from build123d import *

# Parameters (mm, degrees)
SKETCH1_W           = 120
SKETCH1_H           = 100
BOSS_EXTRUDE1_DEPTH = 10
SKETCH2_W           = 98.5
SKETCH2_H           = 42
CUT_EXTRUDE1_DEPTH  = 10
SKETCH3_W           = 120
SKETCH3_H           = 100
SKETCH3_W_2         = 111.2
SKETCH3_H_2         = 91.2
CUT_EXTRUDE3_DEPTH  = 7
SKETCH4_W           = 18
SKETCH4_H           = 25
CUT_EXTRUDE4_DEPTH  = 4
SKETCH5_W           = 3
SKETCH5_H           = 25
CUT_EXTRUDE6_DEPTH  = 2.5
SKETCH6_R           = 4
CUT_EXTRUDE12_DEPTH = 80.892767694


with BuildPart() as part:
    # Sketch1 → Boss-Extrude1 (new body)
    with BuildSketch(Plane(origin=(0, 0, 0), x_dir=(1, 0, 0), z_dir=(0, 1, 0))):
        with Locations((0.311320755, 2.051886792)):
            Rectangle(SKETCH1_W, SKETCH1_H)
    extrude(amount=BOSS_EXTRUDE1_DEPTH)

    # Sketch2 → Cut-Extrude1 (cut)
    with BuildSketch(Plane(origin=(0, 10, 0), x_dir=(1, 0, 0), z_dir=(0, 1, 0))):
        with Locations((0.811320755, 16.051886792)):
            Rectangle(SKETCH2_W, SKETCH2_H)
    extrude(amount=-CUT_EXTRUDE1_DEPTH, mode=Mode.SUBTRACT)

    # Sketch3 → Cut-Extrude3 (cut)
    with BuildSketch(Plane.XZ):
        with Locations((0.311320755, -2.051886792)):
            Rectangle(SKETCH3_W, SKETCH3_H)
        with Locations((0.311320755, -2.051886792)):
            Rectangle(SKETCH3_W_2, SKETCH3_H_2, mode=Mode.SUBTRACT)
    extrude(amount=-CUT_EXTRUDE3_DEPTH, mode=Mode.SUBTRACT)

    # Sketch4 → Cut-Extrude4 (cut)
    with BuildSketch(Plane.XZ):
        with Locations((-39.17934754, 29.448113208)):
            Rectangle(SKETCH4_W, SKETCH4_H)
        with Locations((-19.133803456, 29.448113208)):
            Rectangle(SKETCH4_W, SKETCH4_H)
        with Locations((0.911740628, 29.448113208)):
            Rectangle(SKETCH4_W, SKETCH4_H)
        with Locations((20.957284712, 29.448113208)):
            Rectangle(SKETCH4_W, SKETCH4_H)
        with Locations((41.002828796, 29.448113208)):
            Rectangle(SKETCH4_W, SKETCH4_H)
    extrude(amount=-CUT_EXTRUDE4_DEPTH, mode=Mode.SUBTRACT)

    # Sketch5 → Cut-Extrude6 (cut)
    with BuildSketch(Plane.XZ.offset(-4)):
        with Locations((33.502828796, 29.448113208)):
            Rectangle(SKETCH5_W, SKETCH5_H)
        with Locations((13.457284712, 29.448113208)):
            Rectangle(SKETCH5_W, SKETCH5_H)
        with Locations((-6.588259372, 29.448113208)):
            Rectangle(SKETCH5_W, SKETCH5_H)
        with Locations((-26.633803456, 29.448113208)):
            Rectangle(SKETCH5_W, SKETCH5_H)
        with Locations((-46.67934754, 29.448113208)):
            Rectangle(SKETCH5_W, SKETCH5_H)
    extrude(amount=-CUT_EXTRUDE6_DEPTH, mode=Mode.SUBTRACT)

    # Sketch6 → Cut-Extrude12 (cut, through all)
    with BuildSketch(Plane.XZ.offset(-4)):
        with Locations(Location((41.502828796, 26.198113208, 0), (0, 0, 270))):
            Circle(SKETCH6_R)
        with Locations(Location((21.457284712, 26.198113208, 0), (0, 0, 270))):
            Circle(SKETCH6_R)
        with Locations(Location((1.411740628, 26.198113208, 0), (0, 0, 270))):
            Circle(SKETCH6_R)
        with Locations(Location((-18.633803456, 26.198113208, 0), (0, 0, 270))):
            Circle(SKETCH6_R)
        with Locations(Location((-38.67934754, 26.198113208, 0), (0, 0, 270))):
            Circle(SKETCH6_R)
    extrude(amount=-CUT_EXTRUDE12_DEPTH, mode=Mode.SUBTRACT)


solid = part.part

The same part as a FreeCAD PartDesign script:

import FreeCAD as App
import Part
import Sketcher
Q = App.Units.Quantity

doc = App.newDocument("Part")
params = doc.addObject("Spreadsheet::Sheet", "Params")
for row, (alias, value) in enumerate([
    ("sketch1_width", "120 mm"),
    ("sketch1_height", "100 mm"),
    ("pad1_length", "10 mm"),
    ("sketch2_height", "42 mm"),
    ("sketch2_width", "98.5 mm"),
    ("pocket1_length", "10 mm"),
    ("sketch3_width", "120 mm"),
    ("sketch3_height", "100 mm"),
    ("sketch3_width2", "111.2 mm"),
    ("sketch3_height2", "91.2 mm"),
    ("pocket2_length", "7 mm"),
    ("sketch4_width", "18 mm"),
    ("sketch4_height", "25 mm"),
    ("pocket3_length", "4 mm"),
    ("sketch5_width", "3 mm"),
    ("sketch5_height", "25 mm"),
    ("pocket4_length", "2.5 mm"),
    ("sketch6_diameter", "8 mm"),
], start=1):
    params.set(f"A{row}", alias)
    params.set(f"B{row}", "=" + value)
    params.setAlias(f"B{row}", alias)

body = doc.addObject("PartDesign::Body", "Body")

# Sketch on XZ plane
sketch1 = body.newObject("Sketcher::SketchObject", "Sketch")
sketch1.AttachmentSupport = (doc.getObject("XZ_Plane"), [""])
sketch1.MapMode = "FlatFace"
sketch1.addGeometry(Part.LineSegment(App.Vector(-59.688679, -52.051887, 0), App.Vector(-59.688679, 47.948113, 0)), False)
sketch1.addGeometry(Part.LineSegment(App.Vector(-59.688679, 47.948113, 0), App.Vector(60.311321, 47.948113, 0)), False)
sketch1.addGeometry(Part.LineSegment(App.Vector(60.311321, 47.948113, 0), App.Vector(60.311321, -52.051887, 0)), False)
sketch1.addGeometry(Part.LineSegment(App.Vector(60.311321, -52.051887, 0), App.Vector(-59.688679, -52.051887, 0)), False)
sketch1.addConstraint(Sketcher.Constraint("Coincident", 0, 2, 1, 1))
sketch1.addConstraint(Sketcher.Constraint("Coincident", 1, 2, 2, 1))
sketch1.addConstraint(Sketcher.Constraint("Coincident", 2, 2, 3, 1))
sketch1.addConstraint(Sketcher.Constraint("Coincident", 3, 2, 0, 1))
sketch1.addConstraint(Sketcher.Constraint("Vertical", 0))
sketch1.addConstraint(Sketcher.Constraint("Horizontal", 1))
sketch1.addConstraint(Sketcher.Constraint("Vertical", 2))
sketch1.addConstraint(Sketcher.Constraint("Horizontal", 3))
sketch1.addConstraint(Sketcher.Constraint("DistanceX", 1, 1, 1, 2, Q("120 mm")))
sketch1.addConstraint(Sketcher.Constraint("DistanceY", 0, 1, 0, 2, Q("100 mm")))
sketch1.addConstraint(Sketcher.Constraint("DistanceX", 0, 2, -1, 1, Q("59.688679 mm")))
sketch1.addConstraint(Sketcher.Constraint("DistanceY", -1, 1, 0, 2, Q("47.948113 mm")))
sketch1.setExpression("Constraints[8]", "Params.sketch1_width")
sketch1.setExpression("Constraints[9]", "Params.sketch1_height")
pad1 = body.newObject("PartDesign::Pad", "Pad")
pad1.Profile = sketch1
pad1.setExpression("Length", "Params.pad1_length")
pad1.Reversed = True

# Sketch on XZ plane
sketch2 = body.newObject("Sketcher::SketchObject", "Sketch001")
sketch2.AttachmentSupport = (doc.getObject("XZ_Plane"), [""])
sketch2.MapMode = "FlatFace"
sketch2.AttachmentOffset = App.Placement(App.Vector(0, 0, -10), App.Rotation())
sketch2.addGeometry(Part.LineSegment(App.Vector(-48.438679, -37.051887, 0), App.Vector(-48.438679, 4.948113, 0)), False)
sketch2.addGeometry(Part.LineSegment(App.Vector(-48.438679, 4.948113, 0), App.Vector(50.061321, 4.948113, 0)), False)
sketch2.addGeometry(Part.LineSegment(App.Vector(50.061321, 4.948113, 0), App.Vector(50.061321, -37.051887, 0)), False)
sketch2.addGeometry(Part.LineSegment(App.Vector(50.061321, -37.051887, 0), App.Vector(-48.438679, -37.051887, 0)), False)
sketch2.addConstraint(Sketcher.Constraint("Coincident", 0, 2, 1, 1))
sketch2.addConstraint(Sketcher.Constraint("Coincident", 1, 2, 2, 1))
sketch2.addConstraint(Sketcher.Constraint("Coincident", 2, 2, 3, 1))
sketch2.addConstraint(Sketcher.Constraint("Coincident", 3, 2, 0, 1))
sketch2.addConstraint(Sketcher.Constraint("Vertical", 0))
sketch2.addConstraint(Sketcher.Constraint("Horizontal", 1))
sketch2.addConstraint(Sketcher.Constraint("Vertical", 2))
sketch2.addConstraint(Sketcher.Constraint("Horizontal", 3))
sketch2.addConstraint(Sketcher.Constraint("DistanceY", 0, 1, 0, 2, Q("42 mm")))
sketch2.addConstraint(Sketcher.Constraint("DistanceX", 1, 1, 1, 2, Q("98.5 mm")))
sketch2.addConstraint(Sketcher.Constraint("DistanceX", 0, 2, -1, 1, Q("48.438679 mm")))
sketch2.addConstraint(Sketcher.Constraint("DistanceY", -1, 1, 0, 2, Q("4.948113 mm")))
sketch2.setExpression("Constraints[8]", "Params.sketch2_height")
sketch2.setExpression("Constraints[9]", "Params.sketch2_width")
pocket1 = body.newObject("PartDesign::Pocket", "Pocket")
pocket1.Profile = sketch2
pocket1.setExpression("Length", "Params.pocket1_length")
pocket1.Reversed = True

# Sketch on XZ plane
sketch3 = body.newObject("Sketcher::SketchObject", "Sketch002")
sketch3.AttachmentSupport = (doc.getObject("XZ_Plane"), [""])
sketch3.MapMode = "FlatFace"
sketch3.addGeometry(Part.LineSegment(App.Vector(-59.688679, 47.948113, 0), App.Vector(-59.688679, -52.051887, 0)), False)
sketch3.addGeometry(Part.LineSegment(App.Vector(-59.688679, -52.051887, 0), App.Vector(60.311321, -52.051887, 0)), False)
sketch3.addGeometry(Part.LineSegment(App.Vector(60.311321, -52.051887, 0), App.Vector(60.311321, 47.948113, 0)), False)
sketch3.addGeometry(Part.LineSegment(App.Vector(60.311321, 47.948113, 0), App.Vector(-59.688679, 47.948113, 0)), False)
sketch3.addGeometry(Part.LineSegment(App.Vector(55.911321, -47.651887, 0), App.Vector(-55.288679, -47.651887, 0)), False)
sketch3.addGeometry(Part.LineSegment(App.Vector(-55.288679, -47.651887, 0), App.Vector(-55.288679, 43.548113, 0)), False)
sketch3.addGeometry(Part.LineSegment(App.Vector(-55.288679, 43.548113, 0), App.Vector(55.911321, 43.548113, 0)), False)
sketch3.addGeometry(Part.LineSegment(App.Vector(55.911321, 43.548113, 0), App.Vector(55.911321, -47.651887, 0)), False)
sketch3.addConstraint(Sketcher.Constraint("Coincident", 0, 2, 1, 1))
sketch3.addConstraint(Sketcher.Constraint("Coincident", 1, 2, 2, 1))
sketch3.addConstraint(Sketcher.Constraint("Coincident", 2, 2, 3, 1))
sketch3.addConstraint(Sketcher.Constraint("Coincident", 3, 2, 0, 1))
sketch3.addConstraint(Sketcher.Constraint("Coincident", 4, 2, 5, 1))
sketch3.addConstraint(Sketcher.Constraint("Coincident", 5, 2, 6, 1))
sketch3.addConstraint(Sketcher.Constraint("Coincident", 6, 2, 7, 1))
sketch3.addConstraint(Sketcher.Constraint("Coincident", 7, 2, 4, 1))
sketch3.addConstraint(Sketcher.Constraint("Vertical", 0))
sketch3.addConstraint(Sketcher.Constraint("Horizontal", 1))
sketch3.addConstraint(Sketcher.Constraint("Vertical", 2))
sketch3.addConstraint(Sketcher.Constraint("Horizontal", 3))
sketch3.addConstraint(Sketcher.Constraint("Horizontal", 4))
sketch3.addConstraint(Sketcher.Constraint("Vertical", 5))
sketch3.addConstraint(Sketcher.Constraint("Horizontal", 6))
sketch3.addConstraint(Sketcher.Constraint("Vertical", 7))
sketch3.addConstraint(Sketcher.Constraint("DistanceX", 1, 1, 1, 2, Q("120 mm")))
sketch3.addConstraint(Sketcher.Constraint("DistanceY", 0, 2, 0, 1, Q("100 mm")))
sketch3.addConstraint(Sketcher.Constraint("DistanceX", 4, 2, 4, 1, Q("111.2 mm")))
sketch3.addConstraint(Sketcher.Constraint("DistanceY", 5, 1, 5, 2, Q("91.2 mm")))
sketch3.addConstraint(Sketcher.Constraint("DistanceX", 0, 2, 4, 2, Q("4.4 mm")))
sketch3.addConstraint(Sketcher.Constraint("DistanceY", 0, 2, 4, 2, Q("4.4 mm")))
sketch3.addConstraint(Sketcher.Constraint("DistanceX", 0, 2, -1, 1, Q("59.688679 mm")))
sketch3.addConstraint(Sketcher.Constraint("DistanceY", 0, 2, -1, 1, Q("52.051887 mm")))
sketch3.setExpression("Constraints[16]", "Params.sketch3_width")
sketch3.setExpression("Constraints[17]", "Params.sketch3_height")
sketch3.setExpression("Constraints[18]", "Params.sketch3_width2")
sketch3.setExpression("Constraints[19]", "Params.sketch3_height2")
pocket2 = body.newObject("PartDesign::Pocket", "Pocket001")
pocket2.Profile = sketch3
pocket2.setExpression("Length", "Params.pocket2_length")

# Sketch on XZ plane
sketch4 = body.newObject("Sketcher::SketchObject", "Sketch003")
sketch4.AttachmentSupport = (doc.getObject("XZ_Plane"), [""])
sketch4.MapMode = "FlatFace"
sketch4.addGeometry(Part.LineSegment(App.Vector(-48.179348, 41.948113, 0), App.Vector(-48.179348, 16.948113, 0)), False)
sketch4.addGeometry(Part.LineSegment(App.Vector(-48.179348, 16.948113, 0), App.Vector(-30.179348, 16.948113, 0)), False)
sketch4.addGeometry(Part.LineSegment(App.Vector(-30.179348, 16.948113, 0), App.Vector(-30.179348, 41.948113, 0)), False)
sketch4.addGeometry(Part.LineSegment(App.Vector(-30.179348, 41.948113, 0), App.Vector(-48.179348, 41.948113, 0)), False)
sketch4.addGeometry(Part.LineSegment(App.Vector(-28.133803, 41.948113, 0), App.Vector(-28.133803, 16.948113, 0)), False)
sketch4.addGeometry(Part.LineSegment(App.Vector(-28.133803, 16.948113, 0), App.Vector(-10.133803, 16.948113, 0)), False)
sketch4.addGeometry(Part.LineSegment(App.Vector(-10.133803, 16.948113, 0), App.Vector(-10.133803, 41.948113, 0)), False)
sketch4.addGeometry(Part.LineSegment(App.Vector(-10.133803, 41.948113, 0), App.Vector(-28.133803, 41.948113, 0)), False)
sketch4.addGeometry(Part.LineSegment(App.Vector(-8.088259, 41.948113, 0), App.Vector(-8.088259, 16.948113, 0)), False)
sketch4.addGeometry(Part.LineSegment(App.Vector(-8.088259, 16.948113, 0), App.Vector(9.911741, 16.948113, 0)), False)
sketch4.addGeometry(Part.LineSegment(App.Vector(9.911741, 16.948113, 0), App.Vector(9.911741, 41.948113, 0)), False)
sketch4.addGeometry(Part.LineSegment(App.Vector(9.911741, 41.948113, 0), App.Vector(-8.088259, 41.948113, 0)), False)
sketch4.addGeometry(Part.LineSegment(App.Vector(11.957285, 41.948113, 0), App.Vector(11.957285, 16.948113, 0)), False)
sketch4.addGeometry(Part.LineSegment(App.Vector(11.957285, 16.948113, 0), App.Vector(29.957285, 16.948113, 0)), False)
sketch4.addGeometry(Part.LineSegment(App.Vector(29.957285, 16.948113, 0), App.Vector(29.957285, 41.948113, 0)), False)
sketch4.addGeometry(Part.LineSegment(App.Vector(29.957285, 41.948113, 0), App.Vector(11.957285, 41.948113, 0)), False)
sketch4.addGeometry(Part.LineSegment(App.Vector(32.002829, 41.948113, 0), App.Vector(32.002829, 16.948113, 0)), False)
sketch4.addGeometry(Part.LineSegment(App.Vector(32.002829, 16.948113, 0), App.Vector(50.002829, 16.948113, 0)), False)
sketch4.addGeometry(Part.LineSegment(App.Vector(50.002829, 16.948113, 0), App.Vector(50.002829, 41.948113, 0)), False)
sketch4.addGeometry(Part.LineSegment(App.Vector(50.002829, 41.948113, 0), App.Vector(32.002829, 41.948113, 0)), False)
sketch4.addConstraint(Sketcher.Constraint("Coincident", 0, 2, 1, 1))
sketch4.addConstraint(Sketcher.Constraint("Coincident", 1, 2, 2, 1))
sketch4.addConstraint(Sketcher.Constraint("Coincident", 2, 2, 3, 1))
sketch4.addConstraint(Sketcher.Constraint("Coincident", 3, 2, 0, 1))
sketch4.addConstraint(Sketcher.Constraint("Coincident", 4, 2, 5, 1))
sketch4.addConstraint(Sketcher.Constraint("Coincident", 5, 2, 6, 1))
sketch4.addConstraint(Sketcher.Constraint("Coincident", 6, 2, 7, 1))
sketch4.addConstraint(Sketcher.Constraint("Coincident", 7, 2, 4, 1))
sketch4.addConstraint(Sketcher.Constraint("Coincident", 8, 2, 9, 1))
sketch4.addConstraint(Sketcher.Constraint("Coincident", 9, 2, 10, 1))
sketch4.addConstraint(Sketcher.Constraint("Coincident", 10, 2, 11, 1))
sketch4.addConstraint(Sketcher.Constraint("Coincident", 11, 2, 8, 1))
sketch4.addConstraint(Sketcher.Constraint("Coincident", 12, 2, 13, 1))
sketch4.addConstraint(Sketcher.Constraint("Coincident", 13, 2, 14, 1))
sketch4.addConstraint(Sketcher.Constraint("Coincident", 14, 2, 15, 1))
sketch4.addConstraint(Sketcher.Constraint("Coincident", 15, 2, 12, 1))
sketch4.addConstraint(Sketcher.Constraint("Coincident", 16, 2, 17, 1))
sketch4.addConstraint(Sketcher.Constraint("Coincident", 17, 2, 18, 1))
sketch4.addConstraint(Sketcher.Constraint("Coincident", 18, 2, 19, 1))
sketch4.addConstraint(Sketcher.Constraint("Coincident", 19, 2, 16, 1))
sketch4.addConstraint(Sketcher.Constraint("Vertical", 0))
sketch4.addConstraint(Sketcher.Constraint("Horizontal", 1))
sketch4.addConstraint(Sketcher.Constraint("Vertical", 2))
sketch4.addConstraint(Sketcher.Constraint("Horizontal", 3))
sketch4.addConstraint(Sketcher.Constraint("Vertical", 4))
sketch4.addConstraint(Sketcher.Constraint("Horizontal", 5))
sketch4.addConstraint(Sketcher.Constraint("Vertical", 6))
sketch4.addConstraint(Sketcher.Constraint("Horizontal", 7))
sketch4.addConstraint(Sketcher.Constraint("Vertical", 8))
sketch4.addConstraint(Sketcher.Constraint("Horizontal", 9))
sketch4.addConstraint(Sketcher.Constraint("Vertical", 10))
sketch4.addConstraint(Sketcher.Constraint("Horizontal", 11))
sketch4.addConstraint(Sketcher.Constraint("Vertical", 12))
sketch4.addConstraint(Sketcher.Constraint("Horizontal", 13))
sketch4.addConstraint(Sketcher.Constraint("Vertical", 14))
sketch4.addConstraint(Sketcher.Constraint("Horizontal", 15))
sketch4.addConstraint(Sketcher.Constraint("Vertical", 16))
sketch4.addConstraint(Sketcher.Constraint("Horizontal", 17))
sketch4.addConstraint(Sketcher.Constraint("Vertical", 18))
sketch4.addConstraint(Sketcher.Constraint("Horizontal", 19))
sketch4.addConstraint(Sketcher.Constraint("Horizontal", 1, 2, 4, 2))
sketch4.addConstraint(Sketcher.Constraint("Horizontal", 3, 2, 6, 2))
sketch4.addConstraint(Sketcher.Constraint("Horizontal", 5, 2, 8, 2))
sketch4.addConstraint(Sketcher.Constraint("Horizontal", 7, 2, 10, 2))
sketch4.addConstraint(Sketcher.Constraint("Horizontal", 9, 2, 12, 2))
sketch4.addConstraint(Sketcher.Constraint("Horizontal", 11, 2, 14, 2))
sketch4.addConstraint(Sketcher.Constraint("Horizontal", 13, 2, 16, 2))
sketch4.addConstraint(Sketcher.Constraint("Horizontal", 15, 2, 18, 2))
sketch4.addConstraint(Sketcher.Constraint("Equal", 3, 5))
sketch4.addConstraint(Sketcher.Constraint("Equal", 7, 9))
sketch4.addConstraint(Sketcher.Constraint("Equal", 11, 13))
sketch4.addConstraint(Sketcher.Constraint("Equal", 15, 17))
sketch4.addConstraint(Sketcher.Constraint("DistanceX", 1, 1, 1, 2, Q("18 mm")))
sketch4.addConstraint(Sketcher.Constraint("DistanceY", 0, 2, 0, 1, Q("25 mm")))
sketch4.addConstraint(Sketcher.Constraint("DistanceX", 8, 2, -1, 1, Q("8.088259 mm")))
sketch4.addConstraint(Sketcher.Constraint("DistanceX", -1, 1, 16, 2, Q("32.002829 mm")))
sketch4.addConstraint(Sketcher.Constraint("DistanceX", 1, 2, 8, 2, Q("22.091088 mm")))
sketch4.addConstraint(Sketcher.Constraint("DistanceX", 5, 2, 12, 2, Q("22.091088 mm")))
sketch4.addConstraint(Sketcher.Constraint("DistanceY", -1, 1, 0, 2, Q("16.948113 mm")))
sketch4.addConstraint(Sketcher.Constraint("DistanceX", 4, 2, -1, 1, Q("28.133803 mm")))
sketch4.setExpression("Constraints[52]", "Params.sketch4_width")
sketch4.setExpression("Constraints[53]", "Params.sketch4_height")
pocket3 = body.newObject("PartDesign::Pocket", "Pocket002")
pocket3.Profile = sketch4
pocket3.setExpression("Length", "Params.pocket3_length")

# Sketch on XZ plane
sketch5 = body.newObject("Sketcher::SketchObject", "Sketch004")
sketch5.AttachmentSupport = (doc.getObject("XZ_Plane"), [""])
sketch5.MapMode = "FlatFace"
sketch5.AttachmentOffset = App.Placement(App.Vector(0, 0, -4), App.Rotation())
sketch5.addGeometry(Part.LineSegment(App.Vector(32.002829, 41.948113, 0), App.Vector(32.002829, 16.948113, 0)), False)
sketch5.addGeometry(Part.LineSegment(App.Vector(32.002829, 16.948113, 0), App.Vector(35.002829, 16.948113, 0)), False)
sketch5.addGeometry(Part.LineSegment(App.Vector(35.002829, 16.948113, 0), App.Vector(35.002829, 41.948113, 0)), False)
sketch5.addGeometry(Part.LineSegment(App.Vector(35.002829, 41.948113, 0), App.Vector(32.002829, 41.948113, 0)), False)
sketch5.addGeometry(Part.LineSegment(App.Vector(11.957285, 41.948113, 0), App.Vector(11.957285, 16.948113, 0)), False)
sketch5.addGeometry(Part.LineSegment(App.Vector(11.957285, 16.948113, 0), App.Vector(14.957285, 16.948113, 0)), False)
sketch5.addGeometry(Part.LineSegment(App.Vector(14.957285, 16.948113, 0), App.Vector(14.957285, 41.948113, 0)), False)
sketch5.addGeometry(Part.LineSegment(App.Vector(14.957285, 41.948113, 0), App.Vector(11.957285, 41.948113, 0)), False)
sketch5.addGeometry(Part.LineSegment(App.Vector(-8.088259, 41.948113, 0), App.Vector(-8.088259, 16.948113, 0)), False)
sketch5.addGeometry(Part.LineSegment(App.Vector(-8.088259, 16.948113, 0), App.Vector(-5.088259, 16.948113, 0)), False)
sketch5.addGeometry(Part.LineSegment(App.Vector(-5.088259, 16.948113, 0), App.Vector(-5.088259, 41.948113, 0)), False)
sketch5.addGeometry(Part.LineSegment(App.Vector(-5.088259, 41.948113, 0), App.Vector(-8.088259, 41.948113, 0)), False)
sketch5.addGeometry(Part.LineSegment(App.Vector(-28.133803, 41.948113, 0), App.Vector(-28.133803, 16.948113, 0)), False)
sketch5.addGeometry(Part.LineSegment(App.Vector(-28.133803, 16.948113, 0), App.Vector(-25.133803, 16.948113, 0)), False)
sketch5.addGeometry(Part.LineSegment(App.Vector(-25.133803, 16.948113, 0), App.Vector(-25.133803, 41.948113, 0)), False)
sketch5.addGeometry(Part.LineSegment(App.Vector(-25.133803, 41.948113, 0), App.Vector(-28.133803, 41.948113, 0)), False)
sketch5.addGeometry(Part.LineSegment(App.Vector(-48.179348, 41.948113, 0), App.Vector(-48.179348, 16.948113, 0)), False)
sketch5.addGeometry(Part.LineSegment(App.Vector(-48.179348, 16.948113, 0), App.Vector(-45.179348, 16.948113, 0)), False)
sketch5.addGeometry(Part.LineSegment(App.Vector(-45.179348, 16.948113, 0), App.Vector(-45.179348, 41.948113, 0)), False)
sketch5.addGeometry(Part.LineSegment(App.Vector(-45.179348, 41.948113, 0), App.Vector(-48.179348, 41.948113, 0)), False)
sketch5.addConstraint(Sketcher.Constraint("Coincident", 0, 2, 1, 1))
sketch5.addConstraint(Sketcher.Constraint("Coincident", 1, 2, 2, 1))
sketch5.addConstraint(Sketcher.Constraint("Coincident", 2, 2, 3, 1))
sketch5.addConstraint(Sketcher.Constraint("Coincident", 3, 2, 0, 1))
sketch5.addConstraint(Sketcher.Constraint("Coincident", 4, 2, 5, 1))
sketch5.addConstraint(Sketcher.Constraint("Coincident", 5, 2, 6, 1))
sketch5.addConstraint(Sketcher.Constraint("Coincident", 6, 2, 7, 1))
sketch5.addConstraint(Sketcher.Constraint("Coincident", 7, 2, 4, 1))
sketch5.addConstraint(Sketcher.Constraint("Coincident", 8, 2, 9, 1))
sketch5.addConstraint(Sketcher.Constraint("Coincident", 9, 2, 10, 1))
sketch5.addConstraint(Sketcher.Constraint("Coincident", 10, 2, 11, 1))
sketch5.addConstraint(Sketcher.Constraint("Coincident", 11, 2, 8, 1))
sketch5.addConstraint(Sketcher.Constraint("Coincident", 12, 2, 13, 1))
sketch5.addConstraint(Sketcher.Constraint("Coincident", 13, 2, 14, 1))
sketch5.addConstraint(Sketcher.Constraint("Coincident", 14, 2, 15, 1))
sketch5.addConstraint(Sketcher.Constraint("Coincident", 15, 2, 12, 1))
sketch5.addConstraint(Sketcher.Constraint("Coincident", 16, 2, 17, 1))
sketch5.addConstraint(Sketcher.Constraint("Coincident", 17, 2, 18, 1))
sketch5.addConstraint(Sketcher.Constraint("Coincident", 18, 2, 19, 1))
sketch5.addConstraint(Sketcher.Constraint("Coincident", 19, 2, 16, 1))
sketch5.addConstraint(Sketcher.Constraint("Vertical", 0))
sketch5.addConstraint(Sketcher.Constraint("Horizontal", 1))
sketch5.addConstraint(Sketcher.Constraint("Vertical", 2))
sketch5.addConstraint(Sketcher.Constraint("Horizontal", 3))
sketch5.addConstraint(Sketcher.Constraint("Vertical", 4))
sketch5.addConstraint(Sketcher.Constraint("Horizontal", 5))
sketch5.addConstraint(Sketcher.Constraint("Vertical", 6))
sketch5.addConstraint(Sketcher.Constraint("Horizontal", 7))
sketch5.addConstraint(Sketcher.Constraint("Vertical", 8))
sketch5.addConstraint(Sketcher.Constraint("Horizontal", 9))
sketch5.addConstraint(Sketcher.Constraint("Vertical", 10))
sketch5.addConstraint(Sketcher.Constraint("Horizontal", 11))
sketch5.addConstraint(Sketcher.Constraint("Vertical", 12))
sketch5.addConstraint(Sketcher.Constraint("Horizontal", 13))
sketch5.addConstraint(Sketcher.Constraint("Vertical", 14))
sketch5.addConstraint(Sketcher.Constraint("Horizontal", 15))
sketch5.addConstraint(Sketcher.Constraint("Vertical", 16))
sketch5.addConstraint(Sketcher.Constraint("Horizontal", 17))
sketch5.addConstraint(Sketcher.Constraint("Vertical", 18))
sketch5.addConstraint(Sketcher.Constraint("Horizontal", 19))
sketch5.addConstraint(Sketcher.Constraint("Horizontal", 1, 2, 4, 2))
sketch5.addConstraint(Sketcher.Constraint("Horizontal", 3, 2, 6, 2))
sketch5.addConstraint(Sketcher.Constraint("Horizontal", 5, 2, 8, 2))
sketch5.addConstraint(Sketcher.Constraint("Horizontal", 7, 2, 10, 2))
sketch5.addConstraint(Sketcher.Constraint("Horizontal", 9, 2, 12, 2))
sketch5.addConstraint(Sketcher.Constraint("Horizontal", 11, 2, 14, 2))
sketch5.addConstraint(Sketcher.Constraint("Horizontal", 13, 2, 16, 2))
sketch5.addConstraint(Sketcher.Constraint("Horizontal", 15, 2, 18, 2))
sketch5.addConstraint(Sketcher.Constraint("Equal", 3, 5))
sketch5.addConstraint(Sketcher.Constraint("Equal", 7, 9))
sketch5.addConstraint(Sketcher.Constraint("Equal", 11, 13))
sketch5.addConstraint(Sketcher.Constraint("Equal", 15, 17))
sketch5.addConstraint(Sketcher.Constraint("DistanceX", 1, 1, 1, 2, Q("3 mm")))
sketch5.addConstraint(Sketcher.Constraint("DistanceY", 0, 2, 0, 1, Q("25 mm")))
sketch5.addConstraint(Sketcher.Constraint("DistanceX", -1, 1, 0, 2, Q("32.002829 mm")))
sketch5.addConstraint(Sketcher.Constraint("DistanceX", 8, 2, -1, 1, Q("8.088259 mm")))
sketch5.addConstraint(Sketcher.Constraint("DistanceX", 12, 2, 4, 2, Q("40.091088 mm")))
sketch5.addConstraint(Sketcher.Constraint("DistanceX", 16, 2, 8, 2, Q("40.091088 mm")))
sketch5.addConstraint(Sketcher.Constraint("DistanceY", -1, 1, 0, 2, Q("16.948113 mm")))
sketch5.addConstraint(Sketcher.Constraint("DistanceX", -1, 1, 4, 2, Q("11.957285 mm")))
sketch5.setExpression("Constraints[52]", "Params.sketch5_width")
sketch5.setExpression("Constraints[53]", "Params.sketch5_height")
pocket4 = body.newObject("PartDesign::Pocket", "Pocket003")
pocket4.Profile = sketch5
pocket4.setExpression("Length", "Params.pocket4_length")

# Sketch on XZ plane
sketch6 = body.newObject("Sketcher::SketchObject", "Sketch005")
sketch6.AttachmentSupport = (doc.getObject("XZ_Plane"), [""])
sketch6.MapMode = "FlatFace"
sketch6.AttachmentOffset = App.Placement(App.Vector(0, 0, -4), App.Rotation())
sketch6.addGeometry(Part.Circle(App.Vector(41.502829, 26.198113, 0), App.Vector(0, 0, 1), 4), False)
sketch6.addGeometry(Part.Circle(App.Vector(21.457285, 26.198113, 0), App.Vector(0, 0, 1), 4), False)
sketch6.addGeometry(Part.Circle(App.Vector(1.411741, 26.198113, 0), App.Vector(0, 0, 1), 4), False)
sketch6.addGeometry(Part.Circle(App.Vector(-18.633803, 26.198113, 0), App.Vector(0, 0, 1), 4), False)
sketch6.addGeometry(Part.Circle(App.Vector(-38.679348, 26.198113, 0), App.Vector(0, 0, 1), 4), False)
sketch6.addConstraint(Sketcher.Constraint("Equal", 0, 1))
sketch6.addConstraint(Sketcher.Constraint("Equal", 1, 2))
sketch6.addConstraint(Sketcher.Constraint("Equal", 2, 3))
sketch6.addConstraint(Sketcher.Constraint("Equal", 3, 4))
sketch6.addConstraint(Sketcher.Constraint("Horizontal", 0, 3, 1, 3))
sketch6.addConstraint(Sketcher.Constraint("Horizontal", 1, 3, 2, 3))
sketch6.addConstraint(Sketcher.Constraint("Horizontal", 2, 3, 3, 3))
sketch6.addConstraint(Sketcher.Constraint("Horizontal", 3, 3, 4, 3))
sketch6.addConstraint(Sketcher.Constraint("Diameter", 0, Q("8 mm")))
sketch6.addConstraint(Sketcher.Constraint("DistanceX", -1, 1, 0, 3, Q("41.502829 mm")))
sketch6.addConstraint(Sketcher.Constraint("DistanceX", -1, 1, 2, 3, Q("1.411741 mm")))
sketch6.addConstraint(Sketcher.Constraint("DistanceX", 3, 3, 1, 3, Q("40.091088 mm")))
sketch6.addConstraint(Sketcher.Constraint("DistanceX", 4, 3, 2, 3, Q("40.091088 mm")))
sketch6.addConstraint(Sketcher.Constraint("DistanceY", -1, 1, 0, 3, Q("26.198113 mm")))
sketch6.addConstraint(Sketcher.Constraint("DistanceX", -1, 1, 1, 3, Q("21.457285 mm")))
sketch6.setExpression("Constraints[8]", "Params.sketch6_diameter")
pocket5 = body.newObject("PartDesign::Pocket", "Pocket004")
pocket5.Profile = sketch6
pocket5.Type = "ThroughAll"

doc.recompute()
